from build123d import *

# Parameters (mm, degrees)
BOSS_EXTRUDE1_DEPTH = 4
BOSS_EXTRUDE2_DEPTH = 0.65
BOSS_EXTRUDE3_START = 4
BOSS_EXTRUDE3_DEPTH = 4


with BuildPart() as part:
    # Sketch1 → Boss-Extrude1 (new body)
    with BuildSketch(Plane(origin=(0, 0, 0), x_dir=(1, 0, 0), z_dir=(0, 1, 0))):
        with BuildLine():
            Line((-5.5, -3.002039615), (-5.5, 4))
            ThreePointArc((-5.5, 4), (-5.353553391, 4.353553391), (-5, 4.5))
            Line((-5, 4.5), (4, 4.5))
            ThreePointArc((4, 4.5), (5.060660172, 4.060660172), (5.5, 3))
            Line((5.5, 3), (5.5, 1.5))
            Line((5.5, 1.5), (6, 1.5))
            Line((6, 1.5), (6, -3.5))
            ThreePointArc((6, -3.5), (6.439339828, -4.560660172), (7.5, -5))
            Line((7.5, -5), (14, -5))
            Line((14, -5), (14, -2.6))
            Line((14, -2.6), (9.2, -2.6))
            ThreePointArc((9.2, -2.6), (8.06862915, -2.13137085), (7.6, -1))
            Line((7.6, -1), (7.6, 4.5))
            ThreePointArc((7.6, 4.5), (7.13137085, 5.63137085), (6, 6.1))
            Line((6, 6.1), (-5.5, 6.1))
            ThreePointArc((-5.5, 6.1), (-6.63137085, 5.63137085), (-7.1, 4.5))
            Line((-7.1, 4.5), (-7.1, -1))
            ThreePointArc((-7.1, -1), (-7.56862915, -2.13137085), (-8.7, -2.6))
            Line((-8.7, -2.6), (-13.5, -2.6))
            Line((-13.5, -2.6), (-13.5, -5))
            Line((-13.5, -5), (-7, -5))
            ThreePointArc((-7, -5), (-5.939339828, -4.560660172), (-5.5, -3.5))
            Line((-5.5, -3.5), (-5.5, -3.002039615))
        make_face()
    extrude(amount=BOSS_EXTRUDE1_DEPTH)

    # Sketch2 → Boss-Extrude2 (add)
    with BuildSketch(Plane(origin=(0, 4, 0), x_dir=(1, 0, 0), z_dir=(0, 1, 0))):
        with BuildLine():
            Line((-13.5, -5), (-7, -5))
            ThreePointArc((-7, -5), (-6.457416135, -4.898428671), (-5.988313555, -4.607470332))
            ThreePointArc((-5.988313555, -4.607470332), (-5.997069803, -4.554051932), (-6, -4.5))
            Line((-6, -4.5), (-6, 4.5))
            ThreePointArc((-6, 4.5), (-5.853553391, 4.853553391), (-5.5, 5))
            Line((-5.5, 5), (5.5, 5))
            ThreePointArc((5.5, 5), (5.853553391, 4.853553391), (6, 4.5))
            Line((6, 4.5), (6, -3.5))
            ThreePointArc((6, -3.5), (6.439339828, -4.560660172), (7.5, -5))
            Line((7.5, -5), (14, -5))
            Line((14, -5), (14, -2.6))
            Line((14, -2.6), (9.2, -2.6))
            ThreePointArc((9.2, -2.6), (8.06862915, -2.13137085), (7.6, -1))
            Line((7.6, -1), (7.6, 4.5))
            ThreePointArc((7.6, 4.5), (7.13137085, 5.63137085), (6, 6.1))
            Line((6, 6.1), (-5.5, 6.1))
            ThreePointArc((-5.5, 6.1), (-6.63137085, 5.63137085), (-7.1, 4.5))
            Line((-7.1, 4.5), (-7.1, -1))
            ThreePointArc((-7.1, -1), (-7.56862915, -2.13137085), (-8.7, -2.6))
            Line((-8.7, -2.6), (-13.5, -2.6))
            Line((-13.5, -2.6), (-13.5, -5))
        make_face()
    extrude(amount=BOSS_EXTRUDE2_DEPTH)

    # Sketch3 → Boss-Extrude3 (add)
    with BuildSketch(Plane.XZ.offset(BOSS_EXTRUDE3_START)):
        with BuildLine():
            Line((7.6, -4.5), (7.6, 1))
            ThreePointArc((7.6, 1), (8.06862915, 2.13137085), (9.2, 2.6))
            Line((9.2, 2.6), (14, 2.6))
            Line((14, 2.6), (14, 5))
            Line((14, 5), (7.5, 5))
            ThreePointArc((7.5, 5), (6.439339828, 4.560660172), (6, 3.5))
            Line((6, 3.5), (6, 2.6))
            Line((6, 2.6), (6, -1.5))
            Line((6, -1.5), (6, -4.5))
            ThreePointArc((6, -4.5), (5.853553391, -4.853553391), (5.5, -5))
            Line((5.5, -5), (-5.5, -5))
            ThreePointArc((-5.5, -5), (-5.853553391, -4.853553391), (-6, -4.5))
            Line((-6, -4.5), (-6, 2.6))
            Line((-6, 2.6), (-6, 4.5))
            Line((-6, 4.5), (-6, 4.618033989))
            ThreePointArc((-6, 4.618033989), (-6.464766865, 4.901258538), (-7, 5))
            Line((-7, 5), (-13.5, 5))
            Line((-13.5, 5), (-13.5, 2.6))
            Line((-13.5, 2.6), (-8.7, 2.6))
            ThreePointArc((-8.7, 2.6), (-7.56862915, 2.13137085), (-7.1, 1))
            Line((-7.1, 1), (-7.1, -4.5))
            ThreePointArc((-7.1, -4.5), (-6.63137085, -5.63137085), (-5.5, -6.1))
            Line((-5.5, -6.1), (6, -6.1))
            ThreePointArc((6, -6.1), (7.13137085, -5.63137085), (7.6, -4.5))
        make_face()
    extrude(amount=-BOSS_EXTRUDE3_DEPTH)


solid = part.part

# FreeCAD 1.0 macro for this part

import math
import FreeCAD as App
import Part
import Sketcher
Q = App.Units.Quantity

doc = App.newDocument("Part")
body = doc.addObject("PartDesign::Body", "Body")

# Sketch on XZ plane
sketch1 = doc.addObject("Sketcher::SketchObject", "Sketch")
body.addObject(sketch1)
sketch1.AttachmentSupport = (doc.XZ_Plane, [""])
sketch1.MapMode = "FlatFace"
sketch1.addGeometry([
    Part.ArcOfCircle(Part.Circle(App.Vector(-5, -4, 0), App.Vector(0, 0, 1), 0.5), math.radians(180), math.radians(270)),  # 0
    Part.LineSegment(App.Vector(-5, -4.5, 0), App.Vector(4, -4.5, 0)),  # 1
    Part.ArcOfCircle(Part.Circle(App.Vector(4, -3, 0), App.Vector(0, 0, 1), 1.5), math.radians(-90), math.radians(0)),  # 2
    Part.LineSegment(App.Vector(5.5, -3, 0), App.Vector(5.5, -1.5, 0)),  # 3
    Part.LineSegment(App.Vector(5.5, -1.5, 0), App.Vector(6, -1.5, 0)),  # 4
    Part.LineSegment(App.Vector(6, -1.5, 0), App.Vector(6, 3.5, 0)),  # 5
    Part.ArcOfCircle(Part.Circle(App.Vector(7.5, 3.5, 0), App.Vector(0, 0, 1), 1.5), math.radians(90), math.radians(180)),  # 6
    Part.LineSegment(App.Vector(7.5, 5, 0), App.Vector(14, 5, 0)),  # 7
    Part.LineSegment(App.Vector(14, 5, 0), App.Vector(14, 2.6, 0)),  # 8
    Part.LineSegment(App.Vector(14, 2.6, 0), App.Vector(9.2, 2.6, 0)),  # 9
    Part.ArcOfCircle(Part.Circle(App.Vector(9.2, 1, 0), App.Vector(0, 0, 1), 1.6), math.radians(90), math.radians(180)),  # 10
    Part.LineSegment(App.Vector(7.6, 1, 0), App.Vector(7.6, -4.5, 0)),  # 11
    Part.ArcOfCircle(Part.Circle(App.Vector(6, -4.5, 0), App.Vector(0, 0, 1), 1.6), math.radians(-90), math.radians(0)),  # 12
    Part.LineSegment(App.Vector(6, -6.1, 0), App.Vector(-5.5, -6.1, 0)),  # 13
    Part.ArcOfCircle(Part.Circle(App.Vector(-5.5, -4.5, 0), App.Vector(0, 0, 1), 1.6), math.radians(180), math.radians(270)),  # 14
    Part.LineSegment(App.Vector(-7.1, -4.5, 0), App.Vector(-7.1, 1, 0)),  # 15
    Part.ArcOfCircle(Part.Circle(App.Vector(-8.7, 1, 0), App.Vector(0, 0, 1), 1.6), math.radians(0), math.radians(90)),  # 16
    Part.LineSegment(App.Vector(-8.7, 2.6, 0), App.Vector(-13.5, 2.6, 0)),  # 17
    Part.LineSegment(App.Vector(-13.5, 2.6, 0), App.Vector(-13.5, 5, 0)),  # 18
    Part.LineSegment(App.Vector(-13.5, 5, 0), App.Vector(-7, 5, 0)),  # 19
    Part.ArcOfCircle(Part.Circle(App.Vector(-7, 3.5, 0), App.Vector(0, 0, 1), 1.5), math.radians(0), math.radians(90)),  # 20
    Part.LineSegment(App.Vector(-5.5, 3.5, 0), App.Vector(-5.5, -4, 0)),  # 21
], False)
sketch1.addConstraint([
    Sketcher.Constraint("Tangent", 0, 2, 1, 1),
    Sketcher.Constraint("Tangent", 1, 2, 2, 1),
    Sketcher.Constraint("Tangent", 2, 2, 3, 1),
    Sketcher.Constraint("Coincident", 3, 2, 4, 1),
    Sketcher.Constraint("Coincident", 4, 2, 5, 1),
    Sketcher.Constraint("Tangent", 5, 2, 6, 2),
    Sketcher.Constraint("Tangent", 6, 1, 7, 1),
    Sketcher.Constraint("Coincident", 7, 2, 8, 1),
    Sketcher.Constraint("Coincident", 8, 2, 9, 1),
    Sketcher.Constraint("Tangent", 9, 2, 10, 1),
    Sketcher.Constraint("Tangent", 10, 2, 11, 1),
    Sketcher.Constraint("Tangent", 11, 2, 12, 2),
    Sketcher.Constraint("Tangent", 12, 1, 13, 1),
    Sketcher.Constraint("Tangent", 13, 2, 14, 2),
    Sketcher.Constraint("Tangent", 14, 1, 15, 1),
    Sketcher.Constraint("Tangent", 15, 2, 16, 1),
    Sketcher.Constraint("Tangent", 16, 2, 17, 1),
    Sketcher.Constraint("Coincident", 17, 2, 18, 1),
    Sketcher.Constraint("Coincident", 18, 2, 19, 1),
    Sketcher.Constraint("Tangent", 19, 2, 20, 2),
    Sketcher.Constraint("Tangent", 20, 1, 21, 1),
    Sketcher.Constraint("Tangent", 21, 2, 0, 1),
    Sketcher.Constraint("Horizontal", 1),
    Sketcher.Constraint("Vertical", 3),
    Sketcher.Constraint("Horizontal", 4),
    Sketcher.Constraint("Vertical", 5),
    Sketcher.Constraint("Horizontal", 7),
    Sketcher.Constraint("Vertical", 8),
    Sketcher.Constraint("Horizontal", 9),
    Sketcher.Constraint("Vertical", 11),
    Sketcher.Constraint("Horizontal", 13),
    Sketcher.Constraint("Vertical", 15),
    Sketcher.Constraint("Horizontal", 17),
    Sketcher.Constraint("Vertical", 18),
    Sketcher.Constraint("Horizontal", 19),
    Sketcher.Constraint("Vertical", 21),
    Sketcher.Constraint("Equal", 2, 6),
    Sketcher.Constraint("Equal", 10, 12),
    Sketcher.Constraint("Equal", 12, 14),
    Sketcher.Constraint("Equal", 14, 16),
    Sketcher.Constraint("Equal", 6, 20),
    Sketcher.Constraint("Horizontal", 10, 3, 16, 3),
    Sketcher.Constraint("Horizontal", 6, 3, 20, 3),
    Sketcher.Constraint("Horizontal", 14, 3, 0, 2),
    Sketcher.Constraint("Vertical", 12, 3, 4, 2),
    Sketcher.Constraint("Vertical", 13, 2, 20, 1),
    Sketcher.Constraint("Equal", 9, 17),
    Sketcher.Constraint("Radius", 0, Q("0.5 mm")),
    Sketcher.Constraint("Radius", 2, Q("1.5 mm")),
    Sketcher.Constraint("Radius", 10, Q("1.6 mm")),
    Sketcher.Constraint("DistanceX", 1, 1, 1, 2, Q("9 mm")),
    Sketcher.Constraint("DistanceY", 5, 1, 5, 2, Q("5 mm")),
    Sketcher.Constraint("DistanceX", 4, 1, 4, 2, Q("0.5 mm")),
    Sketcher.Constraint("DistanceX", 7, 1, 7, 2, Q("6.5 mm")),
    Sketcher.Constraint("DistanceY", 3, 1, 3, 2, Q("1.5 mm")),
    Sketcher.Constraint("DistanceY", 8, 2, 8, 1, Q("2.4 mm")),
    Sketcher.Constraint("DistanceX", 0, 3, -1, 1, Q("5 mm")),
    Sketcher.Constraint("DistanceY", 0, 3, -1, 1, Q("4 mm")),
])
pad1 = doc.addObject("PartDesign::Pad", "Pad")
body.addObject(pad1)
pad1.Profile = sketch1
pad1.Length = 4
pad1.Reversed = True

# Sketch on XZ plane
sketch2 = doc.addObject("Sketcher::SketchObject", "Sketch001")
body.addObject(sketch2)
sketch2.AttachmentSupport = (doc.XZ_Plane, [""])
sketch2.MapMode = "FlatFace"
sketch2.AttachmentOffset = App.Placement(App.Vector(0, 0, -4), App.Rotation())
sketch2.addGeometry([
    Part.LineSegment(App.Vector(-13.5, 5, 0), App.Vector(-7, 5, 0)),  # 0
    Part.ArcOfCircle(Part.Circle(App.Vector(-7, 3.5, 0), App.Vector(0, 0, 1), 1.5), math.radians(47.587954), math.radians(90)),  # 1
    Part.ArcOfCircle(Part.Circle(App.Vector(-5.5, 4.5, 0), App.Vector(0, 0, 1), 0.5), math.radians(167.587953), math.radians(180.000001)),  # 2
    Part.LineSegment(App.Vector(-6, 4.5, 0), App.Vector(-6, -4.5, 0)),  # 3
    Part.ArcOfCircle(Part.Circle(App.Vector(-5.5, -4.5, 0), App.Vector(0, 0, 1), 0.5), math.radians(180), math.radians(270)),  # 4
    Part.LineSegment(App.Vector(-5.5, -5, 0), App.Vector(5.5, -5, 0)),  # 5
    Part.ArcOfCircle(Part.Circle(App.Vector(5.5, -4.5, 0), App.Vector(0, 0, 1), 0.5), math.radians(-90), math.radians(0)),  # 6
    Part.LineSegment(App.Vector(6, -4.5, 0), App.Vector(6, 3.5, 0)),  # 7
    Part.ArcOfCircle(Part.Circle(App.Vector(7.5, 3.5, 0), App.Vector(0, 0, 1), 1.5), math.radians(90), math.radians(180)),  # 8
    Part.LineSegment(App.Vector(7.5, 5, 0), App.Vector(14, 5, 0)),  # 9
    Part.LineSegment(App.Vector(14, 5, 0), App.Vector(14, 2.6, 0)),  # 10
    Part.LineSegment(App.Vector(14, 2.6, 0), App.Vector(9.2, 2.6, 0)),  # 11
    Part.ArcOfCircle(Part.Circle(App.Vector(9.2, 1, 0), App.Vector(0, 0, 1), 1.6), math.radians(90), math.radians(180)),  # 12
    Part.LineSegment(App.Vector(7.6, 1, 0), App.Vector(7.6, -4.5, 0)),  # 13
    Part.ArcOfCircle(Part.Circle(App.Vector(6, -4.5, 0), App.Vector(0, 0, 1), 1.6), math.radians(-90), math.radians(0)),  # 14
    Part.LineSegment(App.Vector(6, -6.1, 0), App.Vector(-5.5, -6.1, 0)),  # 15
    Part.ArcOfCircle(Part.Circle(App.Vector(-5.5, -4.5, 0), App.Vector(0, 0, 1), 1.6), math.radians(180), math.radians(270)),  # 16
    Part.LineSegment(App.Vector(-7.1, -4.5, 0), App.Vector(-7.1, 1, 0)),  # 17
    Part.ArcOfCircle(Part.Circle(App.Vector(-8.7, 1, 0), App.Vector(0, 0, 1), 1.6), math.radians(0), math.radians(90)),  # 18
    Part.LineSegment(App.Vector(-8.7, 2.6, 0), App.Vector(-13.5, 2.6, 0)),  # 19
    Part.LineSegment(App.Vector(-13.5, 2.6, 0), App.Vector(-13.5, 5, 0)),  # 20
], False)
sketch2.addConstraint([
    Sketcher.Constraint("Tangent", 0, 2, 1, 2),
    Sketcher.Constraint("Coincident", 1, 1, 2, 1),
    Sketcher.Constraint("Tangent", 2, 2, 3, 1),
    Sketcher.Constraint("Tangent", 3, 2, 4, 1),
    Sketcher.Constraint("Tangent", 4, 2, 5, 1),
    Sketcher.Constraint("Tangent", 5, 2, 6, 1),
    Sketcher.Constraint("Tangent", 6, 2, 7, 1),
    Sketcher.Constraint("Tangent", 7, 2, 8, 2),
    Sketcher.Constraint("Tangent", 8, 1, 9, 1),
    Sketcher.Constraint("Coincident", 9, 2, 10, 1),
    Sketcher.Constraint("Coincident", 10, 2, 11, 1),
    Sketcher.Constraint("Tangent", 11, 2, 12, 1),
    Sketcher.Constraint("Tangent", 12, 2, 13, 1),
    Sketcher.Constraint("Tangent", 13, 2, 14, 2),
    Sketcher.Constraint("Tangent", 14, 1, 15, 1),
    Sketcher.Constraint("Tangent", 15, 2, 16, 2),
    Sketcher.Constraint("Tangent", 16, 1, 17, 1),
    Sketcher.Constraint("Tangent", 17, 2, 18, 1),
    Sketcher.Constraint("Tangent", 18, 2, 19, 1),
    Sketcher.Constraint("Coincident", 19, 2, 20, 1),
    Sketcher.Constraint("Coincident", 20, 2, 0, 1),
    Sketcher.Constraint("Horizontal", 0),
    Sketcher.Constraint("Vertical", 3),
    Sketcher.Constraint("Horizontal", 5),
    Sketcher.Constraint("Vertical", 7),
    Sketcher.Constraint("Horizontal", 9),
    Sketcher.Constraint("Vertical", 10),
    Sketcher.Constraint("Horizontal", 11),
    Sketcher.Constraint("Vertical", 13),
    Sketcher.Constraint("Horizontal", 15),
    Sketcher.Constraint("Vertical", 17),
    Sketcher.Constraint("Horizontal", 19),
    Sketcher.Constraint("Vertical", 20),
    Sketcher.Constraint("Coincident", 16, 3, 4, 3),
    Sketcher.Constraint("Coincident", 6, 2, 14, 3),
    Sketcher.Constraint("Equal", 2, 4),
    Sketcher.Constraint("Equal", 4, 6),
    Sketcher.Constraint("Equal", 1, 8),
    Sketcher.Constraint("Equal", 12, 14),
    Sketcher.Constraint("Equal", 16, 18),
    Sketcher.Constraint("Symmetric", 2, 3, 6, 3, -1, 1),
    Sketcher.Constraint("Horizontal", 1, 3, 8, 3),
    Sketcher.Constraint("Horizontal", 12, 3, 18, 3),
    Sketcher.Constraint("Equal", 0, 9),
    Sketcher.Constraint("Equal", 11, 19),
    Sketcher.Constraint("Radius", 1, Q("1.5 mm")),
    Sketcher.Constraint("Radius", 2, Q("0.5 mm")),
    Sketcher.Constraint("Radius", 12, Q("1.6 mm")),
    Sketcher.Constraint("DistanceX", 5, 1, 5, 2, Q("11 mm")),
    Sketcher.Constraint("DistanceY", 3, 2, 3, 1, Q("9 mm")),
    Sketcher.Constraint("DistanceY", 7, 1, 7, 2, Q("8 mm")),
    Sketcher.Constraint("DistanceX", 0, 1, 0, 2, Q("6.5 mm")),
    Sketcher.Constraint("DistanceY", 10, 2, 10, 1, Q("2.4 mm")),
])
pad2 = doc.addObject("PartDesign::Pad", "Pad001")
body.addObject(pad2)
pad2.Profile = sketch2
pad2.Length = 0.65
pad2.Reversed = True

# Sketch on XZ plane
sketch3 = doc.addObject("Sketcher::SketchObject", "Sketch002")
body.addObject(sketch3)
sketch3.AttachmentSupport = (doc.XZ_Plane, [""])
sketch3.MapMode = "FlatFace"
sketch3.AttachmentOffset = App.Placement(App.Vector(0, 0, 4), App.Rotation())
sketch3.addGeometry([
    Part.LineSegment(App.Vector(7.6, -4.5, 0), App.Vector(7.6, 1, 0)),  # 0
    Part.ArcOfCircle(Part.Circle(App.Vector(9.2, 1, 0), App.Vector(0, 0, 1), 1.6), math.radians(90), math.radians(180)),  # 1
    Part.LineSegment(App.Vector(9.2, 2.6, 0), App.Vector(14, 2.6, 0)),  # 2
    Part.LineSegment(App.Vector(14, 2.6, 0), App.Vector(14, 5, 0)),  # 3
    Part.LineSegment(App.Vector(14, 5, 0), App.Vector(7.5, 5, 0)),  # 4
    Part.ArcOfCircle(Part.Circle(App.Vector(7.5, 3.5, 0), App.Vector(0, 0, 1), 1.5), math.radians(90), math.radians(180)),  # 5
    Part.LineSegment(App.Vector(6, 3.5, 0), App.Vector(6, -4.5, 0)),  # 6
    Part.ArcOfCircle(Part.Circle(App.Vector(5.5, -4.5, 0), App.Vector(0, 0, 1), 0.5), math.radians(-90), math.radians(0)),  # 7
    Part.LineSegment(App.Vector(5.5, -5, 0), App.Vector(-5.5, -5, 0)),  # 8
    Part.ArcOfCircle(Part.Circle(App.Vector(-5.5, -4.5, 0), App.Vector(0, 0, 1), 0.5), math.radians(180), math.radians(270)),  # 9
    Part.LineSegment(App.Vector(-6, -4.5, 0), App.Vector(-6, 4.618034, 0)),  # 10
    Part.ArcOfCircle(Part.Circle(App.Vector(-7, 3.5, 0), App.Vector(0, 0, 1), 1.5), math.radians(48.189685), math.radians(90)),  # 11
    Part.LineSegment(App.Vector(-7, 5, 0), App.Vector(-13.5, 5, 0)),  # 12
    Part.LineSegment(App.Vector(-13.5, 5, 0), App.Vector(-13.5, 2.6, 0)),  # 13
    Part.LineSegment(App.Vector(-13.5, 2.6, 0), App.Vector(-8.7, 2.6, 0)),  # 14
    Part.ArcOfCircle(Part.Circle(App.Vector(-8.7, 1, 0), App.Vector(0, 0, 1), 1.6), math.radians(0), math.radians(90)),  # 15
    Part.LineSegment(App.Vector(-7.1, 1, 0), App.Vector(-7.1, -4.5, 0)),  # 16
    Part.ArcOfCircle(Part.Circle(App.Vector(-5.5, -4.5, 0), App.Vector(0, 0, 1), 1.6), math.radians(180), math.radians(270)),  # 17
    Part.LineSegment(App.Vector(-5.5, -6.1, 0), App.Vector(6, -6.1, 0)),  # 18
    Part.ArcOfCircle(Part.Circle(App.Vector(6, -4.5, 0), App.Vector(0, 0, 1), 1.6), math.radians(-90), math.radians(0)),  # 19
], False)
sketch3.addConstraint([
    Sketcher.Constraint("Tangent", 0, 2, 1, 2),
    Sketcher.Constraint("Tangent", 1, 1, 2, 1),
    Sketcher.Constraint("Coincident", 2, 2, 3, 1),
    Sketcher.Constraint("Coincident", 3, 2, 4, 1),
    Sketcher.Constraint("Tangent", 4, 2, 5, 1),
    Sketcher.Constraint("Tangent", 5, 2, 6, 1),
    Sketcher.Constraint("Tangent", 6, 2, 7, 2),
    Sketcher.Constraint("Tangent", 7, 1, 8, 1),
    Sketcher.Constraint("Tangent", 8, 2, 9, 2),
    Sketcher.Constraint("Tangent", 9, 1, 10, 1),
    Sketcher.Constraint("Coincident", 10, 2, 11, 1),
    Sketcher.Constraint("Tangent", 11, 2, 12, 1),
    Sketcher.Constraint("Coincident", 12, 2, 13, 1),
    Sketcher.Constraint("Coincident", 13, 2, 14, 1),
    Sketcher.Constraint("Tangent", 14, 2, 15, 2),
    Sketcher.Constraint("Tangent", 15, 1, 16, 1),
    Sketcher.Constraint("Tangent", 16, 2, 17, 1),
    Sketcher.Constraint("Tangent", 17, 2, 18, 1),
    Sketcher.Constraint("Tangent", 18, 2, 19, 1),
    Sketcher.Constraint("Tangent", 19, 2, 0, 1),
    Sketcher.Constraint("Vertical", 0),
    Sketcher.Constraint("Horizontal", 2),
    Sketcher.Constraint("Vertical", 3),
    Sketcher.Constraint("Horizontal", 4),
    Sketcher.Constraint("Vertical", 6),
    Sketcher.Constraint("Horizontal", 8),
    Sketcher.Constraint("Vertical", 10),
    Sketcher.Constraint("Horizontal", 12),
    Sketcher.Constraint("Vertical", 13),
    Sketcher.Constraint("Horizontal", 14),
    Sketcher.Constraint("Vertical", 16),
    Sketcher.Constraint("Horizontal", 18),
    Sketcher.Constraint("Coincident", 17, 3, 9, 3),
    Sketcher.Constraint("Coincident", 6, 2, 19, 3),
    Sketcher.Constraint("Equal", 7, 9),
    Sketcher.Constraint("Equal", 5, 11),
    Sketcher.Constraint("Equal", 1, 15),
    Sketcher.Constraint("Equal", 15, 17),
    Sketcher.Constraint("Horizontal", 5, 3, 11, 3),
    Sketcher.Constraint("Horizontal", 1, 3, 15, 3),
    Sketcher.Constraint("Equal", 4, 12),
    Sketcher.Constraint("Equal", 2, 14),
    Sketcher.Constraint("Radius", 1, Q("1.6 mm")),
    Sketcher.Constraint("Radius", 5, Q("1.5 mm")),
    Sketcher.Constraint("Radius", 7, Q("0.5 mm")),
    Sketcher.Constraint("DistanceX", 8, 2, 8, 1, Q("11 mm")),
    Sketcher.Constraint("DistanceY", 6, 2, 6, 1, Q("8 mm")),
    Sketcher.Constraint("DistanceX", 2, 1, 2, 2, Q("4.8 mm")),
    Sketcher.Constraint("DistanceY", 0, 1, 0, 2, Q("5.5 mm")),
    Sketcher.Constraint("DistanceY", -1, 1, 1, 3, Q("1 mm")),
    Sketcher.Constraint("DistanceX", 11, 3, -1, 1, Q("7 mm")),
])
pad3 = doc.addObject("PartDesign::Pad", "Pad002")
body.addObject(pad3)
pad3.Profile = sketch3
pad3.Length = 4
pad3.Reversed = True

doc.recompute()
